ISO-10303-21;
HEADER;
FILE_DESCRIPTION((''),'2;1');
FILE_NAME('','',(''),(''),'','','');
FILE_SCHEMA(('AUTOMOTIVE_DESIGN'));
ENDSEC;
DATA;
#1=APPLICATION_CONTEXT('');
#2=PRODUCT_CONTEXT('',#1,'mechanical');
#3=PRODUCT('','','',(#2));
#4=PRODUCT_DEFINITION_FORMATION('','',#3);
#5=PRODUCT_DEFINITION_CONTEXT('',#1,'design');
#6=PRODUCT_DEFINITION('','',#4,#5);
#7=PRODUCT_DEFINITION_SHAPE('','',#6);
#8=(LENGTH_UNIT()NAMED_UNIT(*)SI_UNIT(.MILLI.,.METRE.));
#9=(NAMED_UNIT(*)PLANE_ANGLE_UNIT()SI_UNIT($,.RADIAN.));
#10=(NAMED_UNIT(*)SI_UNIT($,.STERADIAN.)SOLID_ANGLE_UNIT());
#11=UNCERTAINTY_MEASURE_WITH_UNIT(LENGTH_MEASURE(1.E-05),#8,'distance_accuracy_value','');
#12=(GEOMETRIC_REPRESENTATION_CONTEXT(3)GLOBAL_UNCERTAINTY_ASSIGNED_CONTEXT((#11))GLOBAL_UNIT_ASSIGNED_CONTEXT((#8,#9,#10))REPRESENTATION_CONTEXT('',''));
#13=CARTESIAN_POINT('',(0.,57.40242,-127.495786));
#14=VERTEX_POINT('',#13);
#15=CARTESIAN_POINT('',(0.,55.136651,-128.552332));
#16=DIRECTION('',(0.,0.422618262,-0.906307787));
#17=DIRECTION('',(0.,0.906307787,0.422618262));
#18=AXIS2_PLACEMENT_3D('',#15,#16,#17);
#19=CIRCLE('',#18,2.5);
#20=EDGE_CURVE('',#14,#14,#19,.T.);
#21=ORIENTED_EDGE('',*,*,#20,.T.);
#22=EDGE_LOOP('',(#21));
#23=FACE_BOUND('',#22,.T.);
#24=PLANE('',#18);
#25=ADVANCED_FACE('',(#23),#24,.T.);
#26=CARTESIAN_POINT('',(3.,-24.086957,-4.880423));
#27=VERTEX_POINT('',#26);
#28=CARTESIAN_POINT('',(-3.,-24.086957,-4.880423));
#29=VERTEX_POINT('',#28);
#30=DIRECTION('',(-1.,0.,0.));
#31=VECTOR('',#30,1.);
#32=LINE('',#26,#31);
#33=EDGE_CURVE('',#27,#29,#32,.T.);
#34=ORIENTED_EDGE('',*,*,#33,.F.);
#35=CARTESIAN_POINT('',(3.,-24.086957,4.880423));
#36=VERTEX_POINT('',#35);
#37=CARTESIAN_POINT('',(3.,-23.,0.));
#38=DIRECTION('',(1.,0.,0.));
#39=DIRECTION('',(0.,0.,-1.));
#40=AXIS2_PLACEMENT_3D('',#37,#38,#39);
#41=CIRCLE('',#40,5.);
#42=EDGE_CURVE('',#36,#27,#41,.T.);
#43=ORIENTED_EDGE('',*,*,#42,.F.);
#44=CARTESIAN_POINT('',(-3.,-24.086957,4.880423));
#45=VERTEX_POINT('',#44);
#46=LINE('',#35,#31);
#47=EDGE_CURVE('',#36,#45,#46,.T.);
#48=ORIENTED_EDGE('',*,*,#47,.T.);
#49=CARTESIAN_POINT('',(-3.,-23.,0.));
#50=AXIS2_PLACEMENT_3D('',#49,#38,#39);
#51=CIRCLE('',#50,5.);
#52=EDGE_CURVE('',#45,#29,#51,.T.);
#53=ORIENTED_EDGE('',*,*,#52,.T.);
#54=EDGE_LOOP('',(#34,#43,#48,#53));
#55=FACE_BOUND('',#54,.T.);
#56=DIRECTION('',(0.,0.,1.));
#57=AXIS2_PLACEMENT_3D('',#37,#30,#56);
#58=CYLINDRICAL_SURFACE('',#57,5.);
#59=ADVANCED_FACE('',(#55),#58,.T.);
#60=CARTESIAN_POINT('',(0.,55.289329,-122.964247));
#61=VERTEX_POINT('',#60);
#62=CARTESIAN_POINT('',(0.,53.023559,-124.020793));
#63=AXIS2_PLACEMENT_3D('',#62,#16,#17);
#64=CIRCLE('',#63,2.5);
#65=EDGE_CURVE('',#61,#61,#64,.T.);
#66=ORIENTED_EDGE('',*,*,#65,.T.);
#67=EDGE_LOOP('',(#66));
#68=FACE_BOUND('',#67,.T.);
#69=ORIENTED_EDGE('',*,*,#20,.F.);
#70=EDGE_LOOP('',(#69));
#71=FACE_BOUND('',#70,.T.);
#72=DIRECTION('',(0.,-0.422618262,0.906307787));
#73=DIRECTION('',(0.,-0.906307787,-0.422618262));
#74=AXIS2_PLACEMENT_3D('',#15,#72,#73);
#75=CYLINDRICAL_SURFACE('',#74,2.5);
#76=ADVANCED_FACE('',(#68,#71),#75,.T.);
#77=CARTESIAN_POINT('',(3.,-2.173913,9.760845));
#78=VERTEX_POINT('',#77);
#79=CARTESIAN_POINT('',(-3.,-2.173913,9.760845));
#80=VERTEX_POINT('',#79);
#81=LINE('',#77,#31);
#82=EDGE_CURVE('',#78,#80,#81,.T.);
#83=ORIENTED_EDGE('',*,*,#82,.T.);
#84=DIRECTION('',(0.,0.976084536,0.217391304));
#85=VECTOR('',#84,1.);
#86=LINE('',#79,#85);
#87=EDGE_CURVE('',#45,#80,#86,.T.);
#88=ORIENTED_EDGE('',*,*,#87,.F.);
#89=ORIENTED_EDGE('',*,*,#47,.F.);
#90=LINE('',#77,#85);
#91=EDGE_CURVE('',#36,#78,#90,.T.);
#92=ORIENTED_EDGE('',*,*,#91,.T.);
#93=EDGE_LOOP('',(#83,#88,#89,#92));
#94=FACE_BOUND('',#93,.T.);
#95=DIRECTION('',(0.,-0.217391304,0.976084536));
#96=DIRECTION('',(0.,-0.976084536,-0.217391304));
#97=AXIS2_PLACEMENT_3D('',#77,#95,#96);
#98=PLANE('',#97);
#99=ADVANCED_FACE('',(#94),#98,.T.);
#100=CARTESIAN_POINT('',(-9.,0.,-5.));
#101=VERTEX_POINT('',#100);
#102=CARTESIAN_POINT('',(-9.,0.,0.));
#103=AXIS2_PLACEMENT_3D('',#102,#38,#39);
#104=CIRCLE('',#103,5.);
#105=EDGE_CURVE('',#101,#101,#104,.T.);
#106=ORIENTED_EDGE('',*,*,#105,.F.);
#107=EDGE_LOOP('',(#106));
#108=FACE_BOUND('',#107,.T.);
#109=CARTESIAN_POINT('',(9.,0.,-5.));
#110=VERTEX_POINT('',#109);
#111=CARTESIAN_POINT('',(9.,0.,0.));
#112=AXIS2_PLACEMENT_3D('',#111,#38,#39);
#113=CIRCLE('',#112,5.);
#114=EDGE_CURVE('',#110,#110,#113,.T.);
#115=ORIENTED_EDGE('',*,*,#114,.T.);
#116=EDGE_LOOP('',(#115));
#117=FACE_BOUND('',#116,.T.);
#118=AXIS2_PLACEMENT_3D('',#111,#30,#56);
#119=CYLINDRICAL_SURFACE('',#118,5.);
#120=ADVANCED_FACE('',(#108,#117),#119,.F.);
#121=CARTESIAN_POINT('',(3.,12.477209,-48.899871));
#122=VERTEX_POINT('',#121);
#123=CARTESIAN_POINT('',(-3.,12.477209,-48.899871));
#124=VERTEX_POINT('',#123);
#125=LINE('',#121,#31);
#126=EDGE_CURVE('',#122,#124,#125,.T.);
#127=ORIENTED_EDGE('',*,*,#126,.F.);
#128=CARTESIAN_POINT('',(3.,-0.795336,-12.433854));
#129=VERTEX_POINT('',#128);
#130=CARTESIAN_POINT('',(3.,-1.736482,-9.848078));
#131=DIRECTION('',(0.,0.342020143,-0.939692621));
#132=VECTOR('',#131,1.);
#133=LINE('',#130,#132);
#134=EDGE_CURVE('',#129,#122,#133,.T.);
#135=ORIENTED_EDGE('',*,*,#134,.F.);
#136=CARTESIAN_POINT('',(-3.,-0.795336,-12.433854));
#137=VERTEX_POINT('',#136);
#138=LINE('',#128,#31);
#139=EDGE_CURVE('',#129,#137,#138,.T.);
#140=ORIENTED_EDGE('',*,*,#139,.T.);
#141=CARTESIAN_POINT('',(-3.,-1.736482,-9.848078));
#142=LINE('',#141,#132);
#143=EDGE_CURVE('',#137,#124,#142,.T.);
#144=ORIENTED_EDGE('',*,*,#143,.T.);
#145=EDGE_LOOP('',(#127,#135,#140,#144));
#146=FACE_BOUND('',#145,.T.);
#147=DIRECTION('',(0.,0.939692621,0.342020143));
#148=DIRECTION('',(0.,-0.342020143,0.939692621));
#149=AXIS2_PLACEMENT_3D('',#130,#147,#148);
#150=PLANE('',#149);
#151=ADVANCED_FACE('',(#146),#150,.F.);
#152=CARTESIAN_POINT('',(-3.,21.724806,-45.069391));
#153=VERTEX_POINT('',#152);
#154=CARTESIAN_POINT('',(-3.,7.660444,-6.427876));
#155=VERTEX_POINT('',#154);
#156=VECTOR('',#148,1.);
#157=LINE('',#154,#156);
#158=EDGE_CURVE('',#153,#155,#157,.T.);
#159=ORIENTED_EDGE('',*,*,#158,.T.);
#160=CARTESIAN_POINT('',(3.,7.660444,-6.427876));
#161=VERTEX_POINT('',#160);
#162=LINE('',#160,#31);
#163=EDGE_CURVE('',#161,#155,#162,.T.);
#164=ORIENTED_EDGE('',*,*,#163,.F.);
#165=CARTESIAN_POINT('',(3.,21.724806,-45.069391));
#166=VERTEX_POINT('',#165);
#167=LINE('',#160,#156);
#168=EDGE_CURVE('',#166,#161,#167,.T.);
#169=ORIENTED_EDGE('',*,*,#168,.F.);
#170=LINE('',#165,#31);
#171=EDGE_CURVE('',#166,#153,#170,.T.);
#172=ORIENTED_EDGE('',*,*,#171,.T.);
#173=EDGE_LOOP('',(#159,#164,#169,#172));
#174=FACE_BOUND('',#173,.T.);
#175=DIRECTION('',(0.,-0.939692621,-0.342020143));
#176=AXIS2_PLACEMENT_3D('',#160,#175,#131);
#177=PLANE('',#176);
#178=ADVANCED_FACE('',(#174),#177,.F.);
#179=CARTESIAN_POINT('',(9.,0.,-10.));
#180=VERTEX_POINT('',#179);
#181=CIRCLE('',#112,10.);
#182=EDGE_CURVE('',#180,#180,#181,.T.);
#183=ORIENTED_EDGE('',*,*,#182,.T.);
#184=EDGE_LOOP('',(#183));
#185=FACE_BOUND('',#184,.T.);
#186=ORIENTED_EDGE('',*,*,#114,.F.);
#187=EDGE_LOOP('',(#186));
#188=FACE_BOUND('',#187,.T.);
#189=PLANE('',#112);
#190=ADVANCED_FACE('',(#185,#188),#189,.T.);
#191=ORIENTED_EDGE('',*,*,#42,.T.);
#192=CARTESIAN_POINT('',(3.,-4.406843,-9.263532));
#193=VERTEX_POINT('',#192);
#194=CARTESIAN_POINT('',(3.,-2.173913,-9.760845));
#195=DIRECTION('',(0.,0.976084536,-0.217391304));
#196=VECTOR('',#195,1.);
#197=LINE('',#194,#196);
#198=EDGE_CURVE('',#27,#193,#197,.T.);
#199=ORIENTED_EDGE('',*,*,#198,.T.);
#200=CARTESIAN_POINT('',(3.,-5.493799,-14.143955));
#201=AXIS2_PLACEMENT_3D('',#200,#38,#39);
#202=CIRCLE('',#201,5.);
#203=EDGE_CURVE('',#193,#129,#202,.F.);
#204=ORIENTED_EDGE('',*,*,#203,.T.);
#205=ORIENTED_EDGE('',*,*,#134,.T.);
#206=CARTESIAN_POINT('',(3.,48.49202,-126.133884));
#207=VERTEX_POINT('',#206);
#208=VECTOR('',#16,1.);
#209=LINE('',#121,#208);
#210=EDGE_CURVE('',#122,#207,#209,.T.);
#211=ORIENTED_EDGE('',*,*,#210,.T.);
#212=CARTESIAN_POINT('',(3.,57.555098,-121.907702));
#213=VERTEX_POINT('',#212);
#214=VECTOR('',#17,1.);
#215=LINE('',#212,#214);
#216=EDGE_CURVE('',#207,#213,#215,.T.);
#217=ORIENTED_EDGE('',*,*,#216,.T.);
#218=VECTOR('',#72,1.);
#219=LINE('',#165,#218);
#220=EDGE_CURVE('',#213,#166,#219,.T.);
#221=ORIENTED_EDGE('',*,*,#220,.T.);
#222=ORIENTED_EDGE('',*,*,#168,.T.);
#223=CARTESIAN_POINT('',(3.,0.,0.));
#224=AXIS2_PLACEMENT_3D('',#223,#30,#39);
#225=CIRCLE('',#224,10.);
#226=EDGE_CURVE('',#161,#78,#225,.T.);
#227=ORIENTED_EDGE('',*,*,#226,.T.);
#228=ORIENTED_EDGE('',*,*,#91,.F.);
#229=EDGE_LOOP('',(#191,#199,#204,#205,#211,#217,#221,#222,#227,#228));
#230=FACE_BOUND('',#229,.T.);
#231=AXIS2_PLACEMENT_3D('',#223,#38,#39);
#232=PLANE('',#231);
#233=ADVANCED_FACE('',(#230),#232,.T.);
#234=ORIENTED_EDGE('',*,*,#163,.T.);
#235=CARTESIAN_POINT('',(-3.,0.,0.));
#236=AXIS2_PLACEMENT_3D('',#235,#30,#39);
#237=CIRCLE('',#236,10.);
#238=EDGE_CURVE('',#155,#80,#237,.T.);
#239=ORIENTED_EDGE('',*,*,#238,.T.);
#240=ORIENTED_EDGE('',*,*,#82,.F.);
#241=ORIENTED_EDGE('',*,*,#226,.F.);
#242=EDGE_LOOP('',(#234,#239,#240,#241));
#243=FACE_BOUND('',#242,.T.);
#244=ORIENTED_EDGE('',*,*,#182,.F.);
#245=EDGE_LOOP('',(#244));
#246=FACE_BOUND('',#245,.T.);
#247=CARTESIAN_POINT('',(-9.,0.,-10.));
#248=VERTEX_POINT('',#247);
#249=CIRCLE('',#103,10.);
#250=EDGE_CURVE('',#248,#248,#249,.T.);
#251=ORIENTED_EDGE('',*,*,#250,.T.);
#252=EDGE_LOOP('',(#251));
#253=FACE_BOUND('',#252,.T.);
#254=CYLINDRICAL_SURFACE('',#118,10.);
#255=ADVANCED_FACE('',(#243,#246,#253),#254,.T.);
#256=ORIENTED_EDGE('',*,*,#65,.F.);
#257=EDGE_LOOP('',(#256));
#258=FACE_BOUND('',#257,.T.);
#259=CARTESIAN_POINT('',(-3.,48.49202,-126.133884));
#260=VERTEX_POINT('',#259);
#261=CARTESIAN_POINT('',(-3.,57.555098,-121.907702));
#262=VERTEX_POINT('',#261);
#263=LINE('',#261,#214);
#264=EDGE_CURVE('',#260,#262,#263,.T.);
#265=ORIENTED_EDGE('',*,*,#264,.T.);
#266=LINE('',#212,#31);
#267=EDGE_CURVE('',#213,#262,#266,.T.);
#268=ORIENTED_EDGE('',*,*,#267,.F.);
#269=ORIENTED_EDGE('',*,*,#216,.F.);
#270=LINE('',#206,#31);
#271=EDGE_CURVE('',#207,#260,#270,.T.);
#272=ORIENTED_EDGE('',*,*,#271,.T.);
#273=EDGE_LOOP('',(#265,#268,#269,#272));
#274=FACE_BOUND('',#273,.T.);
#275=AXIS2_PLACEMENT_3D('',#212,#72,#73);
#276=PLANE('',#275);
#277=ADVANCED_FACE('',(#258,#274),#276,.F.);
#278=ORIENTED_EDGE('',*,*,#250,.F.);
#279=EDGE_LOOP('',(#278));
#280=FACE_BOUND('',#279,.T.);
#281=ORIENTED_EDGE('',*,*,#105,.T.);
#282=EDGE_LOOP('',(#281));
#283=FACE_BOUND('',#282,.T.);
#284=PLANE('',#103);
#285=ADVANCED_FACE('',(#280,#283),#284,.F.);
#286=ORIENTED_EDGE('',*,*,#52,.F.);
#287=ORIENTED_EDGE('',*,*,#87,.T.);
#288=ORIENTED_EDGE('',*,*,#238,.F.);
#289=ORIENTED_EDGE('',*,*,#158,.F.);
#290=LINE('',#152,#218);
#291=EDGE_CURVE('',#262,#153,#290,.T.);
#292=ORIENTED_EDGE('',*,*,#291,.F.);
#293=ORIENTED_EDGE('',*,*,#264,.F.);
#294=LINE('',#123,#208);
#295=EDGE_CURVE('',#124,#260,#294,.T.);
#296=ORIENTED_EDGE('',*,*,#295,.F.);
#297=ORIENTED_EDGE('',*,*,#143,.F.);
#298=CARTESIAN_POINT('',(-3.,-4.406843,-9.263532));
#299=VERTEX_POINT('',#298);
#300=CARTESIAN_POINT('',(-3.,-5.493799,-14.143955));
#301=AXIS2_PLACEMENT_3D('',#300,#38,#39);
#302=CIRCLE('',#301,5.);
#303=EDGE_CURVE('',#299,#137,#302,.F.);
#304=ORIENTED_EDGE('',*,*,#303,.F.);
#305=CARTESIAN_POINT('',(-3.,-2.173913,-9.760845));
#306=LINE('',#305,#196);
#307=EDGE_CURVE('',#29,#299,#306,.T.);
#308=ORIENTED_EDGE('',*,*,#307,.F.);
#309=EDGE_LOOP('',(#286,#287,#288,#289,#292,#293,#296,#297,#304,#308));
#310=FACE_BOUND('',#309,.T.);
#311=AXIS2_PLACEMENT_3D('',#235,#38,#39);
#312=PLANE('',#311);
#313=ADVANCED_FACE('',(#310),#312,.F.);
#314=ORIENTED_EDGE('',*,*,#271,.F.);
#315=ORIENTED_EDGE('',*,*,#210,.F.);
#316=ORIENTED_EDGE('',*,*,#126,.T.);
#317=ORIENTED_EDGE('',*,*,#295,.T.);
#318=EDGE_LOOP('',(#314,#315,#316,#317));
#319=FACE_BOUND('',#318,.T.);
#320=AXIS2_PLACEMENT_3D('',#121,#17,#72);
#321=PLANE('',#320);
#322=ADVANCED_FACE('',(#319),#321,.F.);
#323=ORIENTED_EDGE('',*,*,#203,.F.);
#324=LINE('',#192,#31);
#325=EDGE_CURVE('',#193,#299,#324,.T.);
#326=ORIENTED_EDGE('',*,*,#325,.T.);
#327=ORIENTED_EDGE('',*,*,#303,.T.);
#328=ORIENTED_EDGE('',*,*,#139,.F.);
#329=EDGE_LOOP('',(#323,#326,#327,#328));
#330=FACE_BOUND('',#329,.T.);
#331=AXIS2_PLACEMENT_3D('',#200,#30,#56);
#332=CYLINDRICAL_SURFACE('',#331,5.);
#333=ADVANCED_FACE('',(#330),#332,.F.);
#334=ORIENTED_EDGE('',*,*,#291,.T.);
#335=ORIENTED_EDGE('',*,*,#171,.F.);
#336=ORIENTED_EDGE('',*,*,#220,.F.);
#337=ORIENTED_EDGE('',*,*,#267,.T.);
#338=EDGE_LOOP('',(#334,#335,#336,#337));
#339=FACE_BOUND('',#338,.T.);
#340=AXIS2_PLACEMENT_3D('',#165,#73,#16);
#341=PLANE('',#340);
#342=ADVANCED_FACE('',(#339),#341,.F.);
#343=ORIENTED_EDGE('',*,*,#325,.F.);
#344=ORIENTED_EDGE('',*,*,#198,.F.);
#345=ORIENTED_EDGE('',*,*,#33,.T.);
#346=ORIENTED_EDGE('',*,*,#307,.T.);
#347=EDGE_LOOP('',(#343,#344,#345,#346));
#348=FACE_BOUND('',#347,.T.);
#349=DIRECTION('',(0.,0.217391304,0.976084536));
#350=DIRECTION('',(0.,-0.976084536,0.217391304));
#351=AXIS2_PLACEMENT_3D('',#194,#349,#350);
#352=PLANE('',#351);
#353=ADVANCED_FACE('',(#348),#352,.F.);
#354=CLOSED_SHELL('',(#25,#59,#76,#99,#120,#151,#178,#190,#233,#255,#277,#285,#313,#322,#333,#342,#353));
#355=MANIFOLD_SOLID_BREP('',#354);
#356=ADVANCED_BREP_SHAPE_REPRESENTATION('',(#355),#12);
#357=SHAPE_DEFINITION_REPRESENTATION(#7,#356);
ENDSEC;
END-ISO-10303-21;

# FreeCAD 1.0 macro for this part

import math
import FreeCAD as App
import Part
import Sketcher
Q = App.Units.Quantity

doc = App.newDocument("Part")
body = doc.addObject("PartDesign::Body", "Body")

# Sketch on YZ plane
sketch1 = body.newObject("Sketcher::SketchObject", "Sketch")
sketch1.AttachmentSupport = (doc.getObject("YZ_Plane"), [""])
sketch1.MapMode = "FlatFace"
sketch1.addGeometry([
    Part.Circle(App.Vector(0, 0, 0), App.Vector(0, 0, 1), 10),
    Part.Circle(App.Vector(0, 0, 0), App.Vector(0, 0, 1), 5),
], False)
sketch1.addConstraint([
    Sketcher.Constraint("Coincident", 0, 3, -1, 1),
    Sketcher.Constraint("Coincident", 1, 3, -1, 1),
    Sketcher.Constraint("Diameter", 0, 20.0),
    Sketcher.Constraint("Diameter", 1, 10.0),
])
pad1 = body.newObject("PartDesign::Pad", "Pad")
pad1.Profile = sketch1
pad1.Length = 18
pad1.Midplane = True

# Sketch on YZ plane
sketch2 = body.newObject("Sketcher::SketchObject", "Sketch001")
sketch2.AttachmentSupport = (doc.getObject("YZ_Plane"), [""])
sketch2.MapMode = "FlatFace"
sketch2.addGeometry([
    Part.LineSegment(App.Vector(-2, -10, 0), App.Vector(12, -49, 0)),  # 0
    Part.LineSegment(App.Vector(12, -49, 0), App.Vector(48, -126, 0)),  # 1
    Part.LineSegment(App.Vector(48, -126, 0), App.Vector(58, -122, 0)),  # 2
    Part.LineSegment(App.Vector(58, -122, 0), App.Vector(22, -45, 0)),  # 3
    Part.LineSegment(App.Vector(22, -45, 0), App.Vector(8, -6, 0)),  # 4
    Part.ArcOfCircle(Part.Circle(App.Vector(0, 0, 0), App.Vector(0, 0, 1), 10), math.radians(-100), math.radians(-40)),  # 5
], False)
sketch2.addConstraint([
    Sketcher.Constraint("Coincident", 0, 2, 1, 1),
    Sketcher.Constraint("Coincident", 1, 2, 2, 1),
    Sketcher.Constraint("Coincident", 2, 2, 3, 1),
    Sketcher.Constraint("Coincident", 3, 2, 4, 1),
    Sketcher.Constraint("Coincident", 4, 2, 5, 2),
    Sketcher.Constraint("Coincident", 5, 1, 0, 1),
    Sketcher.Constraint("Coincident", 5, 3, -1, 1),
    Sketcher.Constraint("Perpendicular", 1, 2),
    Sketcher.Constraint("Perpendicular", 2, 3),
    Sketcher.Constraint("Parallel", 0, 4),
    Sketcher.Constraint("Radius", 5, 10.0),
    Sketcher.Constraint("Angle", 0, Q("-70 deg")),
    Sketcher.Constraint("Angle", 1, Q("-65 deg")),
    Sketcher.Constraint("Distance", 2, 10.0),
    Sketcher.Constraint("DistanceX", -1, 1, 2, 2, 57.555098),
    Sketcher.Constraint("DistanceY", 2, 2, -1, 1, 121.907702),
    Sketcher.Constraint("DistanceY", 5, 1, 4, 2, 3.420201),
    Sketcher.Constraint("Distance", 0, 41.558051),
])
pad2 = body.newObject("PartDesign::Pad", "Pad001")
pad2.Profile = sketch2
pad2.Length = 6
pad2.Midplane = True

# Sketch on YZ plane
sketch3 = body.newObject("Sketcher::SketchObject", "Sketch002")
sketch3.AttachmentSupport = (doc.getObject("YZ_Plane"), [""])
sketch3.MapMode = "FlatFace"
sketch3.addGeometry([
    Part.LineSegment(App.Vector(-2, 10, 0), App.Vector(-24, 5, 0)),
    Part.ArcOfCircle(Part.Circle(App.Vector(-23, 0, 0), App.Vector(0, 0, 1), 5), math.radians(103), math.radians(257)),
    Part.LineSegment(App.Vector(-24, -5, 0), App.Vector(-2, -10, 0)),
    Part.ArcOfCircle(Part.Circle(App.Vector(0, 0, 0), App.Vector(0, 0, 1), 10), math.radians(103), math.radians(257)),
], False)
sketch3.addConstraint([
    Sketcher.Constraint("Tangent", 0, 2, 1, 1),
    Sketcher.Constraint("Tangent", 1, 2, 2, 1),
    Sketcher.Constraint("Tangent", 2, 2, 3, 2),
    Sketcher.Constraint("Tangent", 3, 1, 0, 1),
    Sketcher.Constraint("Coincident", 3, 3, -1, 1),
    Sketcher.Constraint("PointOnObject", 1, 3, -1),
    Sketcher.Constraint("Radius", 1, 5.0),
    Sketcher.Constraint("Radius", 3, 10.0),
    Sketcher.Constraint("DistanceX", 1, 3, -1, 1, 23.0),
])
pad3 = body.newObject("PartDesign::Pad", "Pad002")
pad3.Profile = sketch3
pad3.Length = 6
pad3.Midplane = True

# Sketch on YZ plane
sketch4 = body.newObject("Sketcher::SketchObject", "Sketch003")
sketch4.AttachmentSupport = (doc.getObject("YZ_Plane"), [""])
sketch4.MapMode = "FlatFace"
sketch4.addGeometry([
    Part.LineSegment(App.Vector(-2.17, -9.76, 0), App.Vector(-4.41, -9.26, 0)),
    Part.ArcOfCircle(Part.Circle(App.Vector(-5.49, -14.14, 0), App.Vector(0, 0, 1), 5), math.radians(20), math.radians(77)),
    Part.LineSegment(App.Vector(-0.8, -12.43, 0), App.Vector(-1.74, -9.85, 0)),
    Part.ArcOfCircle(Part.Circle(App.Vector(0, 0, 0), App.Vector(0, 0, 1), 10), math.radians(-102.56), math.radians(-100)),
], False)
sketch4.addConstraint([
    Sketcher.Constraint("Tangent", 0, 2, 1, 2),
    Sketcher.Constraint("Tangent", 1, 1, 2, 1),
    Sketcher.Constraint("Coincident", 2, 2, 3, 2),
    Sketcher.Constraint("Tangent", 3, 1, 0, 1),
    Sketcher.Constraint("Coincident", 3, 3, -1, 1),
    Sketcher.Constraint("Radius", 1, 5.0),
    Sketcher.Constraint("Radius", 3, 9.999999),
    Sketcher.Constraint("Angle", 2, Q("110 deg")),
    Sketcher.Constraint("DistanceX", 1, 3, -1, 1, 5.493799),
    Sketcher.Constraint("Distance", 0, 2.287639),
])
pad4 = body.newObject("PartDesign::Pad", "Pad003")
pad4.Profile = sketch4
pad4.Length = 6
pad4.Midplane = True

# Sketch on an angled plane
sketch5 = body.newObject("Sketcher::SketchObject", "Sketch004")
sketch5.Placement = App.Placement(App.Vector(0, 56.973056, -122.179113), App.Rotation(App.Vector(-1, 0, 0), App.Vector(0, 0.906307787, 0.422618262), App.Vector(0, 0.422618262, -0.906307787), "ZXY"))
sketch5.addGeometry(Part.Circle(App.Vector(0, -4.4, 0), App.Vector(0, 0, 1), 2.5), False)
sketch5.addConstraint([
    Sketcher.Constraint("PointOnObject", 0, 3, -2),
    Sketcher.Constraint("Diameter", 0, 5.0),
    Sketcher.Constraint("DistanceY", 0, 3, -1, 1, 4.357787),
])
pad5 = body.newObject("PartDesign::Pad", "Pad004")
pad5.Profile = sketch5
pad5.Length = 5

doc.recompute()
